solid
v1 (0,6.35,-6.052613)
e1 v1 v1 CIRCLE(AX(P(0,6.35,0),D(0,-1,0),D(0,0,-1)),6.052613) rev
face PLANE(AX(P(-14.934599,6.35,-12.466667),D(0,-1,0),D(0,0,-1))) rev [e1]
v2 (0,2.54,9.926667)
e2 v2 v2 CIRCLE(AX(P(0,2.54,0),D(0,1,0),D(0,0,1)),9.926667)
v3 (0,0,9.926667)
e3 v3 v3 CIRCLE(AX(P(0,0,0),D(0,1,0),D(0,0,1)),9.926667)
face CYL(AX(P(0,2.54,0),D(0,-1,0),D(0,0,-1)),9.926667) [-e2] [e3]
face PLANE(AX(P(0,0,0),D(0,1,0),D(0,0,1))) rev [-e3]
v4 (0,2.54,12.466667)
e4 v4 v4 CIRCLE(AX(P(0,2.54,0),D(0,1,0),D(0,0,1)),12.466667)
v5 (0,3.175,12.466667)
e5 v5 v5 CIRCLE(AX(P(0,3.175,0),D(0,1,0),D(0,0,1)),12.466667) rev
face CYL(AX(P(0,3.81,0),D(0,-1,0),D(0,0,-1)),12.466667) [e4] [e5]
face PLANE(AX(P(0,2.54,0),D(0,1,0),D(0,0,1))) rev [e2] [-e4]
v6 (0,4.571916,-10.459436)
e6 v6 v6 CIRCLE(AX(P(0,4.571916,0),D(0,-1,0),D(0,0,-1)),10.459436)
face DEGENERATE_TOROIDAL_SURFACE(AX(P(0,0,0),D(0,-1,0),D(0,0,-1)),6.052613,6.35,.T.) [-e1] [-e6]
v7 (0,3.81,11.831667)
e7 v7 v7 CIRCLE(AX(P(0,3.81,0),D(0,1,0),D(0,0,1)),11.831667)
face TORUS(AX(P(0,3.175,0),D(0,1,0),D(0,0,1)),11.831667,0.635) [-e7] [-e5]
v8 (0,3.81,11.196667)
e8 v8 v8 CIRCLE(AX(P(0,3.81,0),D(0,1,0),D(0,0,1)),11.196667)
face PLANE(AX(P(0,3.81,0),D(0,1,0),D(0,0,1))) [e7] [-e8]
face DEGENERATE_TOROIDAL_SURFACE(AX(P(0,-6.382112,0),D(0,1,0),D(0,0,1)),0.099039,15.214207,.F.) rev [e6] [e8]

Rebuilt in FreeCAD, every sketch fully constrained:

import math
import FreeCAD as App
import Part
import Sketcher
Q = App.Units.Quantity


def edges_at(feature, points):
    """Names of the edges that pass closest to the given points."""
    edges = feature.Shape.Edges
    near = lambda p: min(range(len(edges)), key=lambda i: edges[i].distToShape(Part.Vertex(*p))[0])
    return sorted({f"Edge{near(p) + 1}" for p in points})

doc = App.newDocument("Part")
body = doc.addObject("PartDesign::Body", "Body")

sketch1 = doc.addObject("Sketcher::SketchObject", "Sketch")
body.addObject(sketch1)
sketch1.AttachmentSupport = (doc.XZ_Plane, [""])
sketch1.MapMode = "FlatFace"
sketch1.addGeometry(Part.Circle(App.Vector(0, 0, 0), App.Vector(0, 0, 1), 10), False)
sketch1.addConstraint([
    Sketcher.Constraint("Coincident", 0, 3, -1, 1),
    Sketcher.Constraint("Diameter", 0, Q("19.853333 mm")),
])
pad1 = doc.addObject("PartDesign::Pad", "Pad")
body.addObject(pad1)
pad1.Profile = sketch1
pad1.Length = Q("0.1 in")
pad1.Reversed = True

sketch2 = doc.addObject("Sketcher::SketchObject", "Sketch001")
body.addObject(sketch2)
sketch2.AttachmentSupport = (doc.XZ_Plane, [""])
sketch2.MapMode = "FlatFace"
sketch2.AttachmentOffset = App.Placement(App.Vector(0, 0, -0.1 * 25.4), App.Rotation())
sketch2.addGeometry(Part.Circle(App.Vector(0, 0, 0), App.Vector(0, 0, 1), 12), False)
sketch2.addConstraint([
    Sketcher.Constraint("Coincident", 0, 3, -1, 1),
    Sketcher.Constraint("Diameter", 0, Q("24.933333 mm")),
])
pad2 = doc.addObject("PartDesign::Pad", "Pad001")
body.addObject(pad2)
pad2.Profile = sketch2
pad2.Length = Q("0.05 in")
pad2.Reversed = True

sketch3 = doc.addObject("Sketcher::SketchObject", "Sketch002")
body.addObject(sketch3)
sketch3.AttachmentSupport = (doc.XY_Plane, [""])
sketch3.MapMode = "FlatFace"
sketch3.addGeometry([
    Part.LineSegment(App.Vector(0, 4, 0), App.Vector(0, 9, 0)),
    Part.ArcOfCircle(Part.Circle(App.Vector(0, -6, 0), App.Vector(0, 0, 1), 15), math.radians(90), math.radians(138)),
    Part.LineSegment(App.Vector(-11, 4, 0), App.Vector(0, 4, 0)),
], False)
sketch3.addConstraint([
    Sketcher.Constraint("Coincident", 0, 2, 1, 1),
    Sketcher.Constraint("Coincident", 1, 2, 2, 1),
    Sketcher.Constraint("Coincident", 2, 2, 0, 1),
    Sketcher.Constraint("Vertical", 0),
    Sketcher.Constraint("Horizontal", 2),
    Sketcher.Constraint("PointOnObject", 0, 2, -2),
    Sketcher.Constraint("DistanceY", -1, 1, 1, 2, Q("0.15 in")),
    Sketcher.Constraint("Radius", 1, Q("15.214207 mm")),
    Sketcher.Constraint("DistanceX", 2, 1, 2, 2, Q("11.196667 mm")),
    Sketcher.Constraint("DistanceY", 0, 1, 0, 2, Q("5.021774 mm")),
])
revolution = doc.addObject("PartDesign::Revolution", "Revolution")
body.addObject(revolution)
revolution.Profile = sketch3
revolution.ReferenceAxis = (sketch3, ["V_Axis"])
revolution.Angle = 360
doc.recompute()

fillet = doc.addObject("PartDesign::Fillet", "Fillet")
body.addObject(fillet)
fillet.Base = (revolution, edges_at(revolution, [(0, 3.81, -12.467)]))
fillet.Radius = Q("0.025 in")

sketch4 = doc.addObject("Sketcher::SketchObject", "Sketch003")
body.addObject(sketch4)
sketch4.AttachmentSupport = (doc.XY_Plane, [""])
sketch4.MapMode = "FlatFace"
sketch4.addGeometry([
    Part.LineSegment(App.Vector(-15, 13, 0), App.Vector(-15, 6, 0)),
    Part.LineSegment(App.Vector(-15, 6, 0), App.Vector(12, 6, 0)),
    Part.LineSegment(App.Vector(12, 6, 0), App.Vector(12, 13, 0)),
    Part.LineSegment(App.Vector(12, 13, 0), App.Vector(-15, 13, 0)),
], False)
sketch4.addConstraint([
    Sketcher.Constraint("Coincident", 0, 2, 1, 1),
    Sketcher.Constraint("Coincident", 1, 2, 2, 1),
    Sketcher.Constraint("Coincident", 2, 2, 3, 1),
    Sketcher.Constraint("Coincident", 3, 2, 0, 1),
    Sketcher.Constraint("Vertical", 0),
    Sketcher.Constraint("Horizontal", 1),
    Sketcher.Constraint("Vertical", 2),
    Sketcher.Constraint("Horizontal", 3),
    Sketcher.Constraint("DistanceY", 0, 2, 0, 1, Q("0.25 in")),
    Sketcher.Constraint("DistanceY", -1, 1, 2, 2, Q("0.5 in")),
    Sketcher.Constraint("DistanceX", 1, 1, 1, 2, Q("27.2477 mm")),
    Sketcher.Constraint("DistanceX", 0, 2, -1, 1, Q("14.934599 mm")),
])
pocket1 = doc.addObject("PartDesign::Pocket", "Pocket")
body.addObject(pocket1)
pocket1.Profile = sketch4
pocket1.Type = "ThroughAll"
pocket1.Midplane = True
doc.recompute()

fillet2 = doc.addObject("PartDesign::Fillet", "Fillet001")
body.addObject(fillet2)
fillet2.Base = (pocket1, edges_at(pocket1, [(8.23, 6.35, 0)]))
fillet2.Radius = Q("0.25 in")

doc.recompute()
